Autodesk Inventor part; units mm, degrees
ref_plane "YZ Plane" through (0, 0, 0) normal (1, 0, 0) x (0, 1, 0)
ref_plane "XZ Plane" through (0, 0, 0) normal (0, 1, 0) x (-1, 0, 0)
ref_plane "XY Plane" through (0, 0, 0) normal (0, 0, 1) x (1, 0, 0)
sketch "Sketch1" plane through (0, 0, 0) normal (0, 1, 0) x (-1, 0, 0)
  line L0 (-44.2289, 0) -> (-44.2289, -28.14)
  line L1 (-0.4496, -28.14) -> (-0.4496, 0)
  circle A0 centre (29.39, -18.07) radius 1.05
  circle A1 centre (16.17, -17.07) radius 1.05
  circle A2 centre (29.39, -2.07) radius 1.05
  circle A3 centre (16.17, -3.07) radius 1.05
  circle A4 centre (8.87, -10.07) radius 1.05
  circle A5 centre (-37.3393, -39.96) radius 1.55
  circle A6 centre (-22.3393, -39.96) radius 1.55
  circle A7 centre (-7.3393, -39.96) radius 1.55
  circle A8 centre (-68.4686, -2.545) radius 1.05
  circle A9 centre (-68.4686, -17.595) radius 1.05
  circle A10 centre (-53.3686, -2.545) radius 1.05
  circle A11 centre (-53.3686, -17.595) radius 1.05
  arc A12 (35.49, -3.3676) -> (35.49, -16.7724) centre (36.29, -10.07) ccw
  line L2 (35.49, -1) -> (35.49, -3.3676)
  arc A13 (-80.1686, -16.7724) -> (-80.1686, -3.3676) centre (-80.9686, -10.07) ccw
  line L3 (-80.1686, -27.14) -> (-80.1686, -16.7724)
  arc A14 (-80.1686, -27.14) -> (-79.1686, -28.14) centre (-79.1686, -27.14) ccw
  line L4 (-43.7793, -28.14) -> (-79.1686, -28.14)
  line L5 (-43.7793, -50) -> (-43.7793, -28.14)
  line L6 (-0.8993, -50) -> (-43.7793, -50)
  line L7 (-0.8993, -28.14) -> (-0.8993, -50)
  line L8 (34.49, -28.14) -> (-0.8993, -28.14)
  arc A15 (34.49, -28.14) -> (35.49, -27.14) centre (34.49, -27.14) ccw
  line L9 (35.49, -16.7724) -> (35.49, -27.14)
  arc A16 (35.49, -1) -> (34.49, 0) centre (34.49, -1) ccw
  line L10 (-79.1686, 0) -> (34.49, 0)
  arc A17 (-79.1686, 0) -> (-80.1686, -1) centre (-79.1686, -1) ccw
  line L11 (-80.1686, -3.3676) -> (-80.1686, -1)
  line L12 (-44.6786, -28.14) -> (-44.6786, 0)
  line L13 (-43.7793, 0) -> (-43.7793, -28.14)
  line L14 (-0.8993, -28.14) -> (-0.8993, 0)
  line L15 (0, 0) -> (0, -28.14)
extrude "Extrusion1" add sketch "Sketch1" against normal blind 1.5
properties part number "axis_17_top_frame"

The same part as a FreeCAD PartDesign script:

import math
import FreeCAD as App
import Part
import Sketcher

V = App.Vector

doc = App.newDocument("Part")
body = doc.addObject("PartDesign::Body", "Body")

# Sketch on XZ plane
sketch1 = body.newObject("Sketcher::SketchObject", "Sketch")
sketch1.AttachmentSupport = (doc.getObject("XZ_Plane"), [""])
sketch1.MapMode = "FlatFace"
sketch1.addGeometry([
    Part.ArcOfCircle(Part.Circle(V(79.2, -1, 0), V(0, 0, 1), 1), math.radians(0), math.radians(90)),  # 0
    Part.LineSegment(V(80.2, -1, 0), V(80.2, -3.4, 0)),  # 1
    Part.ArcOfCircle(Part.Circle(V(81, -10.1, 0), V(0, 0, 1), 6.7), math.radians(97), math.radians(263)),  # 2
    Part.LineSegment(V(80.2, -16.8, 0), V(80.2, -27.1, 0)),  # 3
    Part.ArcOfCircle(Part.Circle(V(79.2, -27.1, 0), V(0, 0, 1), 1), math.radians(-90), math.radians(0)),  # 4
    Part.LineSegment(V(79.2, -28.1, 0), V(43.8, -28.1, 0)),  # 5
    Part.LineSegment(V(43.8, -28.1, 0), V(43.8, -50, 0)),  # 6
    Part.LineSegment(V(43.8, -50, 0), V(0.9, -50, 0)),  # 7
    Part.LineSegment(V(0.9, -50, 0), V(0.9, -28.1, 0)),  # 8
    Part.LineSegment(V(0.9, -28.1, 0), V(-34.5, -28.1, 0)),  # 9
    Part.ArcOfCircle(Part.Circle(V(-34.5, -27.1, 0), V(0, 0, 1), 1), math.radians(180), math.radians(270)),  # 10
    Part.LineSegment(V(-35.5, -27.1, 0), V(-35.5, -16.8, 0)),  # 11
    Part.ArcOfCircle(Part.Circle(V(-36.3, -10.1, 0), V(0, 0, 1), 6.7), math.radians(-83), math.radians(83)),  # 12
    Part.LineSegment(V(-35.5, -3.4, 0), V(-35.5, -1, 0)),  # 13
    Part.ArcOfCircle(Part.Circle(V(-34.5, -1, 0), V(0, 0, 1), 1), math.radians(90), math.radians(180)),  # 14
    Part.LineSegment(V(-34.5, 0, 0), V(79.2, 0, 0)),  # 15
    Part.Circle(V(7.3, -40, 0), V(0, 0, 1), 1.6),  # 16
    Part.Circle(V(37.3, -40, 0), V(0, 0, 1), 1.6),  # 17
    Part.Circle(V(22.3, -40, 0), V(0, 0, 1), 1.6),  # 18
    Part.Circle(V(53.4, -2.5, 0), V(0, 0, 1), 1.1),  # 19
    Part.Circle(V(68.5, -17.6, 0), V(0, 0, 1), 1.1),  # 20
    Part.Circle(V(53.4, -17.6, 0), V(0, 0, 1), 1.1),  # 21
    Part.Circle(V(68.5, -2.5, 0), V(0, 0, 1), 1.1),  # 22
    Part.Circle(V(-29.4, -2.1, 0), V(0, 0, 1), 1.1),  # 23
    Part.Circle(V(-16.2, -17.1, 0), V(0, 0, 1), 1.1),  # 24
    Part.Circle(V(-29.4, -18.1, 0), V(0, 0, 1), 1.1),  # 25
    Part.Circle(V(-8.9, -10.1, 0), V(0, 0, 1), 1.1),  # 26
    Part.Circle(V(-16.2, -3.1, 0), V(0, 0, 1), 1.1),  # 27
], False)
sketch1.addConstraint([
    Sketcher.Constraint("Tangent", 0, 1, 1, 1),
    Sketcher.Constraint("Coincident", 1, 2, 2, 1),
    Sketcher.Constraint("Coincident", 2, 2, 3, 1),
    Sketcher.Constraint("Tangent", 3, 2, 4, 2),
    Sketcher.Constraint("Tangent", 4, 1, 5, 1),
    Sketcher.Constraint("Coincident", 5, 2, 6, 1),
    Sketcher.Constraint("Coincident", 6, 2, 7, 1),
    Sketcher.Constraint("Coincident", 7, 2, 8, 1),
    Sketcher.Constraint("Coincident", 8, 2, 9, 1),
    Sketcher.Constraint("Tangent", 9, 2, 10, 2),
    Sketcher.Constraint("Tangent", 10, 1, 11, 1),
    Sketcher.Constraint("Coincident", 11, 2, 12, 1),
    Sketcher.Constraint("Coincident", 12, 2, 13, 1),
    Sketcher.Constraint("Tangent", 13, 2, 14, 2),
    Sketcher.Constraint("Tangent", 14, 1, 15, 1),
    Sketcher.Constraint("Tangent", 15, 2, 0, 2),
    Sketcher.Constraint("Vertical", 1),
    Sketcher.Constraint("Vertical", 3),
    Sketcher.Constraint("Horizontal", 5),
    Sketcher.Constraint("Vertical", 6),
    Sketcher.Constraint("Horizontal", 7),
    Sketcher.Constraint("Vertical", 8),
    Sketcher.Constraint("Horizontal", 9),
    Sketcher.Constraint("Vertical", 11),
    Sketcher.Constraint("Vertical", 13),
    Sketcher.Constraint("Horizontal", 15),
    Sketcher.Constraint("Equal", 0, 4),
    Sketcher.Constraint("Equal", 4, 10),
    Sketcher.Constraint("Equal", 2, 12),
    Sketcher.Constraint("Equal", 10, 14),
    Sketcher.Constraint("Equal", 16, 17),
    Sketcher.Constraint("Equal", 17, 18),
    Sketcher.Constraint("Equal", 19, 20),
    Sketcher.Constraint("Equal", 20, 21),
    Sketcher.Constraint("Equal", 21, 22),
    Sketcher.Constraint("Equal", 22, 23),
    Sketcher.Constraint("Equal", 23, 24),
    Sketcher.Constraint("Equal", 24, 25),
    Sketcher.Constraint("Equal", 25, 26),
    Sketcher.Constraint("Equal", 26, 27),
    Sketcher.Constraint("PointOnObject", 14, 1, -1),
    Sketcher.Constraint("Horizontal", 4, 3, 10, 3),
    Sketcher.Constraint("Horizontal", 2, 3, 12, 3),
    Sketcher.Constraint("Horizontal", 16, 3, 17, 3),
    Sketcher.Constraint("Horizontal", 17, 3, 18, 3),
    Sketcher.Constraint("Horizontal", 20, 3, 21, 3),
    Sketcher.Constraint("Horizontal", 19, 3, 22, 3),
    Sketcher.Constraint("Horizontal", 12, 3, 26, 3),
    Sketcher.Constraint("Horizontal", 2, 2, 11, 2),
    Sketcher.Constraint("Horizontal", 1, 2, 12, 2),
    Sketcher.Constraint("Vertical", 0, 3, 4, 3),
    Sketcher.Constraint("Vertical", 19, 3, 21, 3),
    Sketcher.Constraint("Vertical", 20, 3, 22, 3),
    Sketcher.Constraint("Vertical", 23, 3, 25, 3),
    Sketcher.Constraint("Vertical", 24, 3, 27, 3),
    Sketcher.Constraint("Equal", 5, 9),
    Sketcher.Constraint("Radius", 0, 1.0),
    Sketcher.Constraint("Diameter", 16, 3.1),
    Sketcher.Constraint("Diameter", 19, 2.1),
    Sketcher.Constraint("Radius", 2, 6.75),
    Sketcher.Constraint("DistanceY", 6, 2, -1, 1, 50.0),
    Sketcher.Constraint("DistanceX", 16, 3, 17, 3, 30.0),
    Sketcher.Constraint("DistanceX", 18, 3, 17, 3, 15.0),
    Sketcher.Constraint("DistanceY", 12, 3, 23, 3, 8.0),
    Sketcher.Constraint("DistanceY", 24, 3, 23, 3, 15.0),
    Sketcher.Constraint("DistanceY", 25, 3, 12, 3, 8.0),
    Sketcher.Constraint("DistanceY", 26, 3, 27, 3, 7.0),
    Sketcher.Constraint("DistanceX", 7, 2, 7, 1, 42.88),
    Sketcher.Constraint("DistanceY", 6, 2, 6, 1, 21.86),
    Sketcher.Constraint("DistanceX", 0, 3, 2, 3, 1.8),
    Sketcher.Constraint("DistanceX", 19, 3, 0, 3, 25.8),
    Sketcher.Constraint("DistanceX", 20, 3, 4, 3, 10.7),
    Sketcher.Constraint("DistanceX", 14, 3, 23, 3, 5.1),
    Sketcher.Constraint("DistanceX", 24, 3, 26, 3, 7.3),
    Sketcher.Constraint("DistanceY", 2, 3, -1, 1, 10.07),
    Sketcher.Constraint("DistanceX", 10, 3, -1, 1, 34.49),
    Sketcher.Constraint("DistanceY", 16, 3, -1, 1, 39.96),
    Sketcher.Constraint("DistanceX", 24, 3, -1, 1, 16.17),
    Sketcher.Constraint("DistanceY", 20, 3, 19, 3, 15.05),
    Sketcher.Constraint("DistanceX", 17, 3, 5, 2, 6.44),
    Sketcher.Constraint("DistanceX", 5, 2, 5, 1, 35.3893),
    Sketcher.Constraint("DistanceY", 19, 3, -1, 1, 2.545),
])
pad1 = body.newObject("PartDesign::Pad", "Pad")
pad1.Profile = sketch1
pad1.Length = 1.5

doc.recompute()
